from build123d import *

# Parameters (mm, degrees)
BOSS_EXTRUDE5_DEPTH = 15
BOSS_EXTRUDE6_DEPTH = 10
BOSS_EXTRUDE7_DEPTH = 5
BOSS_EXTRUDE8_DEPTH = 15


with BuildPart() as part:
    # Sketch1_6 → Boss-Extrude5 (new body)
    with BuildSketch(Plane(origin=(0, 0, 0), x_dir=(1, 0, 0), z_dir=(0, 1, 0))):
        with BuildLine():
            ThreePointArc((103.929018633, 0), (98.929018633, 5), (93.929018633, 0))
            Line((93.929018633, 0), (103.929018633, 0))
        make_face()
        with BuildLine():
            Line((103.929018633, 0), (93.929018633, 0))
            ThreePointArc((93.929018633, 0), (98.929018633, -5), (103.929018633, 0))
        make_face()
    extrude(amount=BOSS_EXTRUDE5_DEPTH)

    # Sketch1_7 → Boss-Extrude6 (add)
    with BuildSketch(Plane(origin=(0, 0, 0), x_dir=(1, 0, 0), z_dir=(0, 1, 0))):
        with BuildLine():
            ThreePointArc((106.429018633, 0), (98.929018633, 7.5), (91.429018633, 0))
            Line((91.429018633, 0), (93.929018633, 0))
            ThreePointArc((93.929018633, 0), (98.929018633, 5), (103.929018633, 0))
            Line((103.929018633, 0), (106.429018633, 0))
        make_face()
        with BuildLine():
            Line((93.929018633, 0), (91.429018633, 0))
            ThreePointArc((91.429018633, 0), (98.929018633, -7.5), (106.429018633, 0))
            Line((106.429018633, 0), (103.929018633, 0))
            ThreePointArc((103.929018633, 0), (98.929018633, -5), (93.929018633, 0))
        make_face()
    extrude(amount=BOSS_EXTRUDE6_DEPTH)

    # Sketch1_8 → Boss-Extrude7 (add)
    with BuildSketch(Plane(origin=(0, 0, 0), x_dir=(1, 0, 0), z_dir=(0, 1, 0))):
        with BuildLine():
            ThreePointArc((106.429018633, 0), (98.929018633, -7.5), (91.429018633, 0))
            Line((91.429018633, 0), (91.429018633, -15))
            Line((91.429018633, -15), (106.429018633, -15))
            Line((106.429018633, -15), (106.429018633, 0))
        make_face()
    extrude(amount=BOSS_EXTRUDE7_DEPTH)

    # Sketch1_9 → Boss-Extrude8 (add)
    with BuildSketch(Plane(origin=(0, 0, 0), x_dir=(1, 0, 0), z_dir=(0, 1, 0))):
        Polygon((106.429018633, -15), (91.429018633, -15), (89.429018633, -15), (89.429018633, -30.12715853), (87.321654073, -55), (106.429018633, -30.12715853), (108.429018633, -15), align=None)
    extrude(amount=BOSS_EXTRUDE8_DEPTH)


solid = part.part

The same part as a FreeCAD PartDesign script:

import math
import FreeCAD as App
import Part
import Sketcher
from FreeCAD import Vector
Q = App.Units.Quantity


def add_polygon(sketch, points):
    """Adds a closed chain of lines whose ends are joined by coincident constraints."""
    first, n = sketch.GeometryCount, len(points)
    for a, b in zip(points, points[1:] + points[:1]):
        sketch.addGeometry(Part.LineSegment(App.Vector(*a, 0), App.Vector(*b, 0)), False)
    for i in range(n):
        sketch.addConstraint(Sketcher.Constraint("Coincident", first + i, 2, first + (i + 1) % n, 1))

doc = App.newDocument("Part")
body = doc.addObject("PartDesign::Body", "Body")

sketch1 = body.newObject("Sketcher::SketchObject", "Sketch")
sketch1.AttachmentSupport = (doc.getObject("XZ_Plane"), [""])
sketch1.MapMode = "FlatFace"
sketch1.addGeometry(Part.Circle(Vector(99, 0, 0), Vector(0, 0, 1), 5), False)
sketch1.addConstraint([
    Sketcher.Constraint("PointOnObject", 0, 3, -1),
    Sketcher.Constraint("Diameter", 0, Q("10 mm")),
    Sketcher.Constraint("DistanceX", -1, 1, 0, 3, Q("98.929019 mm")),
])
pad1 = body.newObject("PartDesign::Pad", "Pad")
pad1.Profile = sketch1
pad1.Length = 15
pad1.Reversed = True

sketch2 = body.newObject("Sketcher::SketchObject", "Sketch001")
sketch2.AttachmentSupport = (doc.getObject("XZ_Plane"), [""])
sketch2.MapMode = "FlatFace"
sketch2.addGeometry([
    Part.Circle(Vector(99, 0, 0), Vector(0, 0, 1), 8),
    Part.Circle(Vector(99, 0, 0), Vector(0, 0, 1), 5),
], False)
sketch2.addConstraint([
    Sketcher.Constraint("Coincident", 1, 3, 0, 3),
    Sketcher.Constraint("PointOnObject", 0, 3, -1),
    Sketcher.Constraint("Diameter", 0, Q("15 mm")),
    Sketcher.Constraint("Diameter", 1, Q("10 mm")),
    Sketcher.Constraint("DistanceX", -1, 1, 0, 3, Q("98.929019 mm")),
])
pad2 = body.newObject("PartDesign::Pad", "Pad001")
pad2.Profile = sketch2
pad2.Length = 10
pad2.Reversed = True

sketch3 = body.newObject("Sketcher::SketchObject", "Sketch002")
sketch3.AttachmentSupport = (doc.getObject("XZ_Plane"), [""])
sketch3.MapMode = "FlatFace"
sketch3.addGeometry([
    Part.ArcOfCircle(Part.Circle(Vector(99, 0, 0), Vector(0, 0, 1), 8), math.radians(0), math.radians(180)),
    Part.LineSegment(Vector(91, 0, 0), Vector(91, 15, 0)),
    Part.LineSegment(Vector(91, 15, 0), Vector(106, 15, 0)),
    Part.LineSegment(Vector(106, 15, 0), Vector(106, 0, 0)),
], False)
sketch3.addConstraint([
    Sketcher.Constraint("Tangent", 0, 2, 1, 1),
    Sketcher.Constraint("Coincident", 1, 2, 2, 1),
    Sketcher.Constraint("Coincident", 2, 2, 3, 1),
    Sketcher.Constraint("Tangent", 3, 2, 0, 1),
    Sketcher.Constraint("Vertical", 1),
    Sketcher.Constraint("Horizontal", 2),
    Sketcher.Constraint("Vertical", 3),
    Sketcher.Constraint("PointOnObject", 0, 3, -1),
    Sketcher.Constraint("Equal", 2, 1),
    Sketcher.Constraint("Radius", 0, Q("7.5 mm")),
    Sketcher.Constraint("DistanceX", -1, 1, 0, 3, Q("98.929019 mm")),
])
pad3 = body.newObject("PartDesign::Pad", "Pad002")
pad3.Profile = sketch3
pad3.Length = 5
pad3.Reversed = True

sketch4 = body.newObject("Sketcher::SketchObject", "Sketch003")
sketch4.AttachmentSupport = (doc.getObject("XZ_Plane"), [""])
sketch4.MapMode = "FlatFace"
add_polygon(sketch4, [(89, 15), (89, 30), (87, 55), (106, 30), (108, 15)])
sketch4.addConstraint([
    Sketcher.Constraint("Vertical", 0),
    Sketcher.Constraint("Horizontal", 4),
    Sketcher.Constraint("Horizontal", 0, 2, 2, 2),
    Sketcher.Constraint("DistanceX", 4, 2, 4, 1, Q("19 mm")),
    Sketcher.Constraint("DistanceY", -1, 1, 1, 2, Q("55 mm")),
    Sketcher.Constraint("DistanceY", -1, 1, 3, 2, Q("15 mm")),
    Sketcher.Constraint("DistanceX", 0, 2, 2, 2, Q("17 mm")),
    Sketcher.Constraint("Distance", 3, Q("15.258798 mm")),
    Sketcher.Constraint("DistanceX", -1, 1, 0, 2, Q("89.429019 mm")),
    Sketcher.Constraint("Distance", 1, Q("24.961956 mm")),
])
pad4 = body.newObject("PartDesign::Pad", "Pad003")
pad4.Profile = sketch4
pad4.Length = 15
pad4.Reversed = True

doc.recompute()
